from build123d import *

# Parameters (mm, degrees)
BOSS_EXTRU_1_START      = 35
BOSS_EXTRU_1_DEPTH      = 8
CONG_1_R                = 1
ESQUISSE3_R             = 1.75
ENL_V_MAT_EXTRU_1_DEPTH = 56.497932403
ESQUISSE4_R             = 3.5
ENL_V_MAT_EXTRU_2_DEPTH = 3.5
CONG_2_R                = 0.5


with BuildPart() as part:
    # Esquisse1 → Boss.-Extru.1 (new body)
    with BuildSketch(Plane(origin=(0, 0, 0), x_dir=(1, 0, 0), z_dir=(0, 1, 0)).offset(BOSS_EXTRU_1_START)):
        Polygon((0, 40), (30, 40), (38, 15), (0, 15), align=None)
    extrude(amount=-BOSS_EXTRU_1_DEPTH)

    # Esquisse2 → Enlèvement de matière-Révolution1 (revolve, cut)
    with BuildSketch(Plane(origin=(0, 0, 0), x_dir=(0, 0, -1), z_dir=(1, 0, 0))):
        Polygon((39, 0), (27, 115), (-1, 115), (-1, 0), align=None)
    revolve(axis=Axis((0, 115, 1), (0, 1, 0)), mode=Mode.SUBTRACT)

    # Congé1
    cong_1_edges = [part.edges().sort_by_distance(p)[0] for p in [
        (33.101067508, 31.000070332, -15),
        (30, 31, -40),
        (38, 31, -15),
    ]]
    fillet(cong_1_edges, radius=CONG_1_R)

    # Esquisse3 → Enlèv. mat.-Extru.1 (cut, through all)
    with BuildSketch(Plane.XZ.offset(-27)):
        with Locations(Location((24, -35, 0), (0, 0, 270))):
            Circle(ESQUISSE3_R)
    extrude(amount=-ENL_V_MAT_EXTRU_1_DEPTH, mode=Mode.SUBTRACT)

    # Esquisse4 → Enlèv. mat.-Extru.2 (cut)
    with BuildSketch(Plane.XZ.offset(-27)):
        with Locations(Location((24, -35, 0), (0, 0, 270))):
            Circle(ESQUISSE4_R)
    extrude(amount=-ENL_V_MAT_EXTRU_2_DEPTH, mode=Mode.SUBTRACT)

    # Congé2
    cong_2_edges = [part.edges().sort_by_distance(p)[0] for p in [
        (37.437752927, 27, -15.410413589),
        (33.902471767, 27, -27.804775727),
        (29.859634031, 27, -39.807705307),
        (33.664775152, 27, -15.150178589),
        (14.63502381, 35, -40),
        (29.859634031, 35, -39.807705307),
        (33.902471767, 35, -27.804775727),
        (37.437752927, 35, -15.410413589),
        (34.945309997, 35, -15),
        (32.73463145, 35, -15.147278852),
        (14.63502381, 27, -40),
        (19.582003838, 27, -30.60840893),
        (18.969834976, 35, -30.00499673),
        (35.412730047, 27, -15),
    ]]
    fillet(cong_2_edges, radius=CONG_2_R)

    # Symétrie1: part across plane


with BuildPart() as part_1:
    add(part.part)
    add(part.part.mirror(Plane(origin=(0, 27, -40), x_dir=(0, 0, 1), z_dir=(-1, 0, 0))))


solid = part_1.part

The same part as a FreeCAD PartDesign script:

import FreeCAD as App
import Part
import Sketcher
from FreeCAD import Vector


def edges_at(feature, points):
    """Names of the edges that pass closest to the given points."""
    edges = feature.Shape.Edges
    near = lambda p: min(range(len(edges)), key=lambda i: edges[i].distToShape(Part.Vertex(*p))[0])
    return sorted({f"Edge{near(p) + 1}" for p in points})


def add_polygon(sketch, points):
    """Adds a closed chain of lines whose ends are joined by coincident constraints."""
    first, n = sketch.GeometryCount, len(points)
    for a, b in zip(points, points[1:] + points[:1]):
        sketch.addGeometry(Part.LineSegment(App.Vector(*a, 0), App.Vector(*b, 0)), False)
    for i in range(n):
        sketch.addConstraint(Sketcher.Constraint("Coincident", first + i, 2, first + (i + 1) % n, 1))

doc = App.newDocument("Part")
body = doc.addObject("PartDesign::Body", "Body")

# Sketch on XZ plane
sketch1 = body.newObject("Sketcher::SketchObject", "Sketch")
sketch1.AttachmentSupport = (doc.getObject("XZ_Plane"), [""])
sketch1.MapMode = "FlatFace"
sketch1.AttachmentOffset = App.Placement(Vector(0, 0, -35), App.Rotation())
add_polygon(sketch1, [(30, -40), (0, -40), (0, -15), (38, -15)])  # lines 0-3
sketch1.addConstraint(Sketcher.Constraint("Horizontal", 0))
sketch1.addConstraint(Sketcher.Constraint("Vertical", 1))
sketch1.addConstraint(Sketcher.Constraint("Horizontal", 2))
sketch1.addConstraint(Sketcher.Constraint("PointOnObject", 0, 2, -2))
sketch1.addConstraint(Sketcher.Constraint("DistanceX", 0, 2, 0, 1, 30.0))
sketch1.addConstraint(Sketcher.Constraint("DistanceX", 2, 1, 2, 2, 38.0))
sketch1.addConstraint(Sketcher.Constraint("DistanceY", 1, 1, 1, 2, 25.0))
sketch1.addConstraint(Sketcher.Constraint("DistanceY", 0, 2, -1, 1, 40.0))
pad1 = body.newObject("PartDesign::Pad", "Pad")
pad1.Profile = sketch1
pad1.Length = 8

# Sketch on YZ plane
sketch2 = body.newObject("Sketcher::SketchObject", "Sketch001")
sketch2.AttachmentSupport = (doc.getObject("YZ_Plane"), [""])
sketch2.MapMode = "FlatFace"
add_polygon(sketch2, [(0, -39), (115, -27), (115, 1), (0, 1)])  # lines 0-3
sketch2.addGeometry(Part.LineSegment(Vector(0, 1, 0), Vector(115, 1, 0)), True)  # axis
sketch2.addConstraint(Sketcher.Constraint("Vertical", 1))
sketch2.addConstraint(Sketcher.Constraint("Horizontal", 2))
sketch2.addConstraint(Sketcher.Constraint("Vertical", 3))
sketch2.addConstraint(Sketcher.Constraint("Horizontal", 4))
sketch2.addConstraint(Sketcher.Constraint("Coincident", 4, 1, 2, 2))
sketch2.addConstraint(Sketcher.Constraint("PointOnObject", 2, 2, -2))
sketch2.addConstraint(Sketcher.Constraint("Vertical", 0, 2, 4, 2))
sketch2.addConstraint(Sketcher.Constraint("DistanceX", 2, 2, 2, 1, 115.0))
sketch2.addConstraint(Sketcher.Constraint("DistanceY", 1, 1, 1, 2, 28.0))
sketch2.addConstraint(Sketcher.Constraint("DistanceY", 3, 2, 3, 1, 40.0))
sketch2.addConstraint(Sketcher.Constraint("DistanceY", 0, 2, -1, 1, 27.0))
groove = body.newObject("PartDesign::Groove", "Groove")
groove.Profile = sketch2
groove.ReferenceAxis = (sketch2, ["Axis0"])
groove.Angle = 360
doc.recompute()

fillet = body.newObject("PartDesign::Fillet", "Fillet")
fillet.Base = (groove, edges_at(groove, [(33.101, 31, -15), (30, 31, -40), (38, 31, -15)]))
fillet.Radius = 1

# Sketch on XZ plane
sketch3 = body.newObject("Sketcher::SketchObject", "Sketch002")
sketch3.AttachmentSupport = (doc.getObject("XZ_Plane"), [""])
sketch3.MapMode = "FlatFace"
sketch3.AttachmentOffset = App.Placement(Vector(0, 0, -27), App.Rotation())
sketch3.addGeometry(Part.Circle(Vector(24, -35, 0), Vector(0, 0, 1), 1.8), False)
sketch3.addConstraint(Sketcher.Constraint("Diameter", 0, 3.5))
sketch3.addConstraint(Sketcher.Constraint("DistanceX", -1, 1, 0, 3, 24.0))
sketch3.addConstraint(Sketcher.Constraint("DistanceY", 0, 3, -1, 1, 35.0))
pocket1 = body.newObject("PartDesign::Pocket", "Pocket")
pocket1.Profile = sketch3
pocket1.Type = "ThroughAll"

# Sketch on XZ plane
sketch4 = body.newObject("Sketcher::SketchObject", "Sketch003")
sketch4.AttachmentSupport = (doc.getObject("XZ_Plane"), [""])
sketch4.MapMode = "FlatFace"
sketch4.AttachmentOffset = App.Placement(Vector(0, 0, -27), App.Rotation())
sketch4.addGeometry(Part.Circle(Vector(24, -35, 0), Vector(0, 0, 1), 3.5), False)
sketch4.addConstraint(Sketcher.Constraint("Diameter", 0, 7.0))
sketch4.addConstraint(Sketcher.Constraint("DistanceX", -1, 1, 0, 3, 24.0))
sketch4.addConstraint(Sketcher.Constraint("DistanceY", 0, 3, -1, 1, 35.0))
pocket2 = body.newObject("PartDesign::Pocket", "Pocket001")
pocket2.Profile = sketch4
pocket2.Length = 3.5
doc.recompute()

fillet2 = body.newObject("PartDesign::Fillet", "Fillet001")
fillet2.Base = (pocket2, edges_at(pocket2, [
    (37.438, 27, -15.41),
    (33.902, 27, -27.805),
    (29.86, 27, -39.808),
    (33.665, 27, -15.15),
    (14.635, 35, -40),
    (29.86, 35, -39.808),
    (33.902, 35, -27.805),
    (37.438, 35, -15.41),
    (34.945, 35, -15),
    (32.735, 35, -15.147),
    (14.635, 27, -40),
    (19.582, 27, -30.608),
    (18.97, 35, -30.005),
    (35.413, 27, -15),
]))
fillet2.Radius = 0.5
body2 = doc.addObject("PartDesign::Body", "Body001")
doc.recompute()

body2.BaseFeature = body
doc.recompute()

mirroring = doc.addObject("Part::Mirroring", "Mirroring")
mirroring.Source = body
mirroring.Base = Vector(0, 27, -40)
mirroring.Normal = Vector(-1, 0, 0)
body3 = doc.addObject("PartDesign::Body", "Body002")
body3.BaseFeature = mirroring
boolean = body2.newObject("PartDesign::Boolean", "Boolean")
boolean.Type = "Fuse"
boolean.addObjects([body3])
doc.recompute()
mirroring.Visibility = False

doc.recompute()
